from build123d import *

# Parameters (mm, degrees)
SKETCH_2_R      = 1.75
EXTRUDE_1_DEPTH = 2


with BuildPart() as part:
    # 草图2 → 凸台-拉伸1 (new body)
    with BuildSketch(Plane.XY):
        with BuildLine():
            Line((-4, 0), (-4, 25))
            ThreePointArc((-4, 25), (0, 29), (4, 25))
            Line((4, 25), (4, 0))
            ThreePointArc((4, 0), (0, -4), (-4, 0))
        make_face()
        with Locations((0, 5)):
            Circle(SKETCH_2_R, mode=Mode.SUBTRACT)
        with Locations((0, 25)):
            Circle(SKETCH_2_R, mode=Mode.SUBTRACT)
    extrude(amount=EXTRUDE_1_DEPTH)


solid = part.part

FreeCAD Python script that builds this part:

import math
import FreeCAD as App
import Part
import Sketcher
Q = App.Units.Quantity

doc = App.newDocument("Part")
body = doc.addObject("PartDesign::Body", "Body")

# Sketch on XY plane
sketch1 = body.newObject("Sketcher::SketchObject", "Sketch")
sketch1.AttachmentSupport = (doc.getObject("XY_Plane"), [""])
sketch1.MapMode = "FlatFace"
sketch1.addGeometry([
    Part.LineSegment(App.Vector(-4, 25, 0), App.Vector(-4, 0, 0)),  # 0
    Part.ArcOfCircle(Part.Circle(App.Vector(0, 0, 0), App.Vector(0, 0, 1), 4), math.radians(180), math.radians(360)),  # 1
    Part.LineSegment(App.Vector(4, 0, 0), App.Vector(4, 25, 0)),  # 2
    Part.ArcOfCircle(Part.Circle(App.Vector(0, 25, 0), App.Vector(0, 0, 1), 4), math.radians(0), math.radians(180)),  # 3
    Part.Circle(App.Vector(0, 5, 0), App.Vector(0, 0, 1), 1.8),  # 4
    Part.Circle(App.Vector(0, 25, 0), App.Vector(0, 0, 1), 1.8),  # 5
], False)
sketch1.addConstraint([
    Sketcher.Constraint("Tangent", 0, 2, 1, 1),
    Sketcher.Constraint("Tangent", 1, 2, 2, 1),
    Sketcher.Constraint("Tangent", 2, 2, 3, 1),
    Sketcher.Constraint("Tangent", 3, 2, 0, 1),
    Sketcher.Constraint("Vertical", 0),
    Sketcher.Constraint("Vertical", 2),
    Sketcher.Constraint("Coincident", 1, 3, -1, 1),
    Sketcher.Constraint("Coincident", 5, 3, 3, 3),
    Sketcher.Constraint("Equal", 4, 5),
    Sketcher.Constraint("PointOnObject", 4, 3, -2),
    Sketcher.Constraint("Radius", 1, Q("4 mm")),
    Sketcher.Constraint("Diameter", 4, Q("3.5 mm")),
    Sketcher.Constraint("DistanceY", 0, 2, 0, 1, Q("25 mm")),
    Sketcher.Constraint("DistanceY", -1, 1, 4, 3, Q("5 mm")),
])
pad1 = body.newObject("PartDesign::Pad", "Pad")
pad1.Profile = sketch1
pad1.Length = 2

doc.recompute()
